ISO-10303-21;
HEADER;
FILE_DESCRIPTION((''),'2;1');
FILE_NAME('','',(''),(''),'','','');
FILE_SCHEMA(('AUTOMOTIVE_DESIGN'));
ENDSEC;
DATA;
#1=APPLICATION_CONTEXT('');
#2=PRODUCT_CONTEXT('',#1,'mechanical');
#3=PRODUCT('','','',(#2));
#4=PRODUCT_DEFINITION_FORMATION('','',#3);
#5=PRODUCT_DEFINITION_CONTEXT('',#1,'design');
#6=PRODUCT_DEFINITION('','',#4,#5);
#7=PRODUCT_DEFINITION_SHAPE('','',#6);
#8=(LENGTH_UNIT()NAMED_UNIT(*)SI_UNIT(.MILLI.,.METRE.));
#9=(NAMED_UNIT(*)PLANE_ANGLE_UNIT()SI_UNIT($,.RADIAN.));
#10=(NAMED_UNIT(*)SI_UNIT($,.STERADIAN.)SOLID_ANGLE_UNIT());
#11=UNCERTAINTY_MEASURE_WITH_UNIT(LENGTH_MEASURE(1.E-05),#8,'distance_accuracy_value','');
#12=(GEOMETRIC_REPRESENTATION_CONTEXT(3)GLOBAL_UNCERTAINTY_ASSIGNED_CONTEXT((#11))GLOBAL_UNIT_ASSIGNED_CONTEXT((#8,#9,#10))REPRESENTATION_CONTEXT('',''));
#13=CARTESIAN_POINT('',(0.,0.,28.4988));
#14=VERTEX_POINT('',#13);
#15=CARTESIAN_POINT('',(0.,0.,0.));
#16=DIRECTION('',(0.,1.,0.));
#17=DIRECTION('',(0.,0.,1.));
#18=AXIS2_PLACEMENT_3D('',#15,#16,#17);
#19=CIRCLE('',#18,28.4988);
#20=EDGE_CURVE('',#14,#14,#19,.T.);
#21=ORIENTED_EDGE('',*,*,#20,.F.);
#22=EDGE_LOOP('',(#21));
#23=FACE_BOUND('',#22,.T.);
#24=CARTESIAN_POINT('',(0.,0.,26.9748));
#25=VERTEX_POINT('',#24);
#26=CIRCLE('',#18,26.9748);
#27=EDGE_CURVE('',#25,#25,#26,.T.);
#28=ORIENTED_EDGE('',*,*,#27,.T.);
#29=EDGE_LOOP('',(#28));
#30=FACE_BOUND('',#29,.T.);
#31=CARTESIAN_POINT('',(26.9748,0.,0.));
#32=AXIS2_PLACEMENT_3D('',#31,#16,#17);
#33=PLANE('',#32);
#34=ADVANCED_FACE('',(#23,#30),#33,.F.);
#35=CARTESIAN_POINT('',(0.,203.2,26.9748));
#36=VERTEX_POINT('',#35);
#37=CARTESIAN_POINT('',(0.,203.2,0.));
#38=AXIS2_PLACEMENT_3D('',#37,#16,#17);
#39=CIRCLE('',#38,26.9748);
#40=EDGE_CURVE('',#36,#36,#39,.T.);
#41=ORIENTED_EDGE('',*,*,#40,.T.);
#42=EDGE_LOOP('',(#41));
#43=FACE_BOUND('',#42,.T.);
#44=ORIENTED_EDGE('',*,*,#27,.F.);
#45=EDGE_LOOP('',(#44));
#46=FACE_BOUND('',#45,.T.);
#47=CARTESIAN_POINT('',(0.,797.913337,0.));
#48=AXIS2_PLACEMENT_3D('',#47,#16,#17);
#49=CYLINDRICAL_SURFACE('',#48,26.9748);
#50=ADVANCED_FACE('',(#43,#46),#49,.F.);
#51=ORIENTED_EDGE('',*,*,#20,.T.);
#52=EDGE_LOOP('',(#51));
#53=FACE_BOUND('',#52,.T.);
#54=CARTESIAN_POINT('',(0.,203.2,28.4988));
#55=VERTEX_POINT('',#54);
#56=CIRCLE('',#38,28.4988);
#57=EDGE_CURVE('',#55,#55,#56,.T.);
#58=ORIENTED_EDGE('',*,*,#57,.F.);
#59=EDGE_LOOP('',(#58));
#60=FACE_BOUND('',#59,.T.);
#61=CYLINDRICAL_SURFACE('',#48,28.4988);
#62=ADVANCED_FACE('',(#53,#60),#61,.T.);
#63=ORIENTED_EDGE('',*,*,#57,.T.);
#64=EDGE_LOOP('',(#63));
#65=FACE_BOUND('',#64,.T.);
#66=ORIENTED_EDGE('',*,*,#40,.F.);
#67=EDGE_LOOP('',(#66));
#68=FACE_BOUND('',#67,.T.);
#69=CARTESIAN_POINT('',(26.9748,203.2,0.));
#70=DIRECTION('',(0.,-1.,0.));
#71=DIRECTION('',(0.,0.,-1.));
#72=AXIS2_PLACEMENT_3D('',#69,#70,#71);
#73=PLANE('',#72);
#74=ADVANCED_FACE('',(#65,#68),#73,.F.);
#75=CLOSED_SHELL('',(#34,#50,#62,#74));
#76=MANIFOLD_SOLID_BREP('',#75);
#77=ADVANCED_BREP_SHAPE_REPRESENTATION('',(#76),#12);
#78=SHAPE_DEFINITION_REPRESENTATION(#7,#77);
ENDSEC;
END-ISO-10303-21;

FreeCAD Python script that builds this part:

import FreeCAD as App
import Part
import Sketcher
from FreeCAD import Vector
Q = App.Units.Quantity


def add_polygon(sketch, points):
    """Adds a closed chain of lines whose ends are joined by coincident constraints."""
    first, n = sketch.GeometryCount, len(points)
    for a, b in zip(points, points[1:] + points[:1]):
        sketch.addGeometry(Part.LineSegment(App.Vector(*a, 0), App.Vector(*b, 0)), False)
    for i in range(n):
        sketch.addConstraint(Sketcher.Constraint("Coincident", first + i, 2, first + (i + 1) % n, 1))

doc = App.newDocument("Part")
body = doc.addObject("PartDesign::Body", "Body")

sketch1 = body.newObject("Sketcher::SketchObject", "Sketch")
sketch1.AttachmentSupport = (doc.getObject("XY_Plane"), [""])
sketch1.MapMode = "FlatFace"
add_polygon(sketch1, [(26.9748, 203.2), (26.9748, 0), (28.4988, 0), (28.4988, 203.2)])
sketch1.addConstraint([
    Sketcher.Constraint("Vertical", 0),
    Sketcher.Constraint("Horizontal", 1),
    Sketcher.Constraint("Vertical", 2),
    Sketcher.Constraint("Horizontal", 3),
    Sketcher.Constraint("PointOnObject", 0, 2, -1),
    Sketcher.Constraint("DistanceY", 0, 2, 0, 1, Q("8 in")),
    Sketcher.Constraint("DistanceX", 1, 1, 1, 2, Q("0.06 in")),
    Sketcher.Constraint("DistanceX", -1, 1, 0, 2, Q("1.062 in")),
])
revolution = body.newObject("PartDesign::Revolution", "Revolution")
revolution.Profile = sketch1
revolution.ReferenceAxis = (sketch1, ["V_Axis"])
revolution.Angle = 360

doc.recompute()
